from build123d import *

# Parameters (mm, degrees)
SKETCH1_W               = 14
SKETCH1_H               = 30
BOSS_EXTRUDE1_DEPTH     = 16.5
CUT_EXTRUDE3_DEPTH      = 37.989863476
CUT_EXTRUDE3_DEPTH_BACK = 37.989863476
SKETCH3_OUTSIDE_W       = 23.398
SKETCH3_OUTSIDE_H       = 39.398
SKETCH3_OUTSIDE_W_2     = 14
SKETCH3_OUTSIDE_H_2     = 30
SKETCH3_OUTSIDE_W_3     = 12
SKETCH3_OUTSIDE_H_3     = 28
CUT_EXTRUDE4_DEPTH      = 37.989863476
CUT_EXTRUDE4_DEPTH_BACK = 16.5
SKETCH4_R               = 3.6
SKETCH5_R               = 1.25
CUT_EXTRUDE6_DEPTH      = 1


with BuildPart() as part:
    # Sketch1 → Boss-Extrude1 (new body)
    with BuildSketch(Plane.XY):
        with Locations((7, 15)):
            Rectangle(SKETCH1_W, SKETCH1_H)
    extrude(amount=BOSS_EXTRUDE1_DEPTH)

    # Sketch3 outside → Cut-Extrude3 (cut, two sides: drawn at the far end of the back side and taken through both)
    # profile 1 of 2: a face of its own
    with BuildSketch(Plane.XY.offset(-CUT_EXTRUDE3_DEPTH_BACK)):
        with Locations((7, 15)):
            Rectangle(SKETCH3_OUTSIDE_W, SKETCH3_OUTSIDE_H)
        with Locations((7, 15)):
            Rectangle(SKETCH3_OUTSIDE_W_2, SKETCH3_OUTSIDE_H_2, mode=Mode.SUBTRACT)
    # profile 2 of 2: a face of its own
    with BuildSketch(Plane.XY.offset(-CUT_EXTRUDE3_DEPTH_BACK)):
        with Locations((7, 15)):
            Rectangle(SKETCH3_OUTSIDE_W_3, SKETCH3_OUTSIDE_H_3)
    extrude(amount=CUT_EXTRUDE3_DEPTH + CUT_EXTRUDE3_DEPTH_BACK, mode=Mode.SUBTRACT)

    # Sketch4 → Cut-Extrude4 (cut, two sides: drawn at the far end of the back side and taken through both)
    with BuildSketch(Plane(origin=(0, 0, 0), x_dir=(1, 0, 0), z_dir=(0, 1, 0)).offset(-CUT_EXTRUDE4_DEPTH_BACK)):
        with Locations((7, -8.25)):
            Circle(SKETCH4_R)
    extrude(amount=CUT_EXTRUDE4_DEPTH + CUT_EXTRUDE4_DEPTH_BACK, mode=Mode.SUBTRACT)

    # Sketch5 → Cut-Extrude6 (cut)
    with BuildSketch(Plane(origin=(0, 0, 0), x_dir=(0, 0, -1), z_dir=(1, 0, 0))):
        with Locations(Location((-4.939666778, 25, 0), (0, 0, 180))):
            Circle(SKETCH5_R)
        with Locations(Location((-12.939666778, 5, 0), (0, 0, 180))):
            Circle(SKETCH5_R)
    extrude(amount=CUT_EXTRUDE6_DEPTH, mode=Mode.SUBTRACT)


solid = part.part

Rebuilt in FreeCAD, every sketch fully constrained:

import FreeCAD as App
import Part
import Sketcher

V = App.Vector


def add_polygon(sketch, points):
    """Adds a closed chain of lines whose ends are joined by coincident constraints."""
    first, n = sketch.GeometryCount, len(points)
    for a, b in zip(points, points[1:] + points[:1]):
        sketch.addGeometry(Part.LineSegment(App.Vector(*a, 0), App.Vector(*b, 0)), False)
    for i in range(n):
        sketch.addConstraint(Sketcher.Constraint("Coincident", first + i, 2, first + (i + 1) % n, 1))

doc = App.newDocument("Part")
body = doc.addObject("PartDesign::Body", "Body")

# Sketch on XY plane
sketch1 = body.newObject("Sketcher::SketchObject", "Sketch")
sketch1.AttachmentSupport = (doc.getObject("XY_Plane"), [""])
sketch1.MapMode = "FlatFace"
add_polygon(sketch1, [(0, 30), (0, 0), (14, 0), (14, 30)])  # lines 0-3
sketch1.addConstraint([
    Sketcher.Constraint("Vertical", 0),
    Sketcher.Constraint("Horizontal", 1),
    Sketcher.Constraint("Vertical", 2),
    Sketcher.Constraint("Horizontal", 3),
    Sketcher.Constraint("Coincident", 0, 2, -1, 1),
    Sketcher.Constraint("DistanceX", 1, 1, 1, 2, 14.0),
    Sketcher.Constraint("DistanceY", 0, 2, 0, 1, 30.0),
])
pad1 = body.newObject("PartDesign::Pad", "Pad")
pad1.Profile = sketch1
pad1.Length = 16.5

# Sketch on XY plane
sketch2 = body.newObject("Sketcher::SketchObject", "Sketch001")
sketch2.AttachmentSupport = (doc.getObject("XY_Plane"), [""])
sketch2.MapMode = "FlatFace"
add_polygon(sketch2, [(-5, 35), (-5, -5), (19, -5), (19, 35)])  # lines 0-3
add_polygon(sketch2, [(14, 0), (0, 0), (0, 30), (14, 30)])  # lines 4-7
add_polygon(sketch2, [(1, 29), (1, 1), (13, 1), (13, 29)])  # lines 8-11
sketch2.addConstraint([
    Sketcher.Constraint("Vertical", 0),
    Sketcher.Constraint("Horizontal", 1),
    Sketcher.Constraint("Vertical", 2),
    Sketcher.Constraint("Horizontal", 3),
    Sketcher.Constraint("Horizontal", 4),
    Sketcher.Constraint("Vertical", 5),
    Sketcher.Constraint("Horizontal", 6),
    Sketcher.Constraint("Vertical", 7),
    Sketcher.Constraint("Vertical", 8),
    Sketcher.Constraint("Horizontal", 9),
    Sketcher.Constraint("Vertical", 10),
    Sketcher.Constraint("Horizontal", 11),
    Sketcher.Constraint("Coincident", 4, 2, -1, 1),
    Sketcher.Constraint("DistanceX", 4, 2, 4, 1, 14.0),
    Sketcher.Constraint("DistanceX", 9, 1, 9, 2, 12.0),
    Sketcher.Constraint("DistanceY", 5, 1, 5, 2, 30.0),
    Sketcher.Constraint("DistanceY", 8, 2, 8, 1, 28.0),
    Sketcher.Constraint("DistanceX", -1, 1, 8, 2, 1.0),
    Sketcher.Constraint("DistanceY", -1, 1, 8, 2, 1.0),
    Sketcher.Constraint("DistanceX", 1, 1, 1, 2, 23.398),
    Sketcher.Constraint("DistanceY", 0, 2, 0, 1, 39.398),
    Sketcher.Constraint("DistanceX", 0, 2, -1, 1, 4.699),
    Sketcher.Constraint("DistanceY", 0, 2, -1, 1, 4.699),
])
pocket1 = body.newObject("PartDesign::Pocket", "Pocket")
pocket1.Profile = sketch2
pocket1.Type = "ThroughAll"
pocket1.Midplane = True

# Sketch on XZ plane
sketch3 = body.newObject("Sketcher::SketchObject", "Sketch002")
sketch3.AttachmentSupport = (doc.getObject("XZ_Plane"), [""])
sketch3.MapMode = "FlatFace"
sketch3.addGeometry(Part.Circle(V(7, 8.2, 0), V(0, 0, 1), 3.6), False)
sketch3.addConstraint([
    Sketcher.Constraint("Diameter", 0, 7.2),
    Sketcher.Constraint("DistanceX", -1, 1, 0, 3, 7.0),
    Sketcher.Constraint("DistanceY", -1, 1, 0, 3, 8.25),
])
pocket2 = body.newObject("PartDesign::Pocket", "Pocket001")
pocket2.Profile = sketch3
pocket2.Type = "ThroughAll"
pocket2.Midplane = True

# Sketch on YZ plane
sketch4 = body.newObject("Sketcher::SketchObject", "Sketch003")
sketch4.AttachmentSupport = (doc.getObject("YZ_Plane"), [""])
sketch4.MapMode = "FlatFace"
sketch4.addGeometry([
    Part.Circle(V(25, 4.9, 0), V(0, 0, 1), 1.2),
    Part.Circle(V(5, 12.9, 0), V(0, 0, 1), 1.2),
], False)
sketch4.addConstraint([
    Sketcher.Constraint("Equal", 0, 1),
    Sketcher.Constraint("Diameter", 0, 2.5),
    Sketcher.Constraint("DistanceX", -1, 1, 0, 3, 25.0),
    Sketcher.Constraint("DistanceX", -1, 1, 1, 3, 5.0),
    Sketcher.Constraint("DistanceY", 0, 3, 1, 3, 8.0),
    Sketcher.Constraint("DistanceY", -1, 1, 0, 3, 4.939667),
])
pocket3 = body.newObject("PartDesign::Pocket", "Pocket002")
pocket3.Profile = sketch4
pocket3.Length = 1
pocket3.Reversed = True

doc.recompute()
